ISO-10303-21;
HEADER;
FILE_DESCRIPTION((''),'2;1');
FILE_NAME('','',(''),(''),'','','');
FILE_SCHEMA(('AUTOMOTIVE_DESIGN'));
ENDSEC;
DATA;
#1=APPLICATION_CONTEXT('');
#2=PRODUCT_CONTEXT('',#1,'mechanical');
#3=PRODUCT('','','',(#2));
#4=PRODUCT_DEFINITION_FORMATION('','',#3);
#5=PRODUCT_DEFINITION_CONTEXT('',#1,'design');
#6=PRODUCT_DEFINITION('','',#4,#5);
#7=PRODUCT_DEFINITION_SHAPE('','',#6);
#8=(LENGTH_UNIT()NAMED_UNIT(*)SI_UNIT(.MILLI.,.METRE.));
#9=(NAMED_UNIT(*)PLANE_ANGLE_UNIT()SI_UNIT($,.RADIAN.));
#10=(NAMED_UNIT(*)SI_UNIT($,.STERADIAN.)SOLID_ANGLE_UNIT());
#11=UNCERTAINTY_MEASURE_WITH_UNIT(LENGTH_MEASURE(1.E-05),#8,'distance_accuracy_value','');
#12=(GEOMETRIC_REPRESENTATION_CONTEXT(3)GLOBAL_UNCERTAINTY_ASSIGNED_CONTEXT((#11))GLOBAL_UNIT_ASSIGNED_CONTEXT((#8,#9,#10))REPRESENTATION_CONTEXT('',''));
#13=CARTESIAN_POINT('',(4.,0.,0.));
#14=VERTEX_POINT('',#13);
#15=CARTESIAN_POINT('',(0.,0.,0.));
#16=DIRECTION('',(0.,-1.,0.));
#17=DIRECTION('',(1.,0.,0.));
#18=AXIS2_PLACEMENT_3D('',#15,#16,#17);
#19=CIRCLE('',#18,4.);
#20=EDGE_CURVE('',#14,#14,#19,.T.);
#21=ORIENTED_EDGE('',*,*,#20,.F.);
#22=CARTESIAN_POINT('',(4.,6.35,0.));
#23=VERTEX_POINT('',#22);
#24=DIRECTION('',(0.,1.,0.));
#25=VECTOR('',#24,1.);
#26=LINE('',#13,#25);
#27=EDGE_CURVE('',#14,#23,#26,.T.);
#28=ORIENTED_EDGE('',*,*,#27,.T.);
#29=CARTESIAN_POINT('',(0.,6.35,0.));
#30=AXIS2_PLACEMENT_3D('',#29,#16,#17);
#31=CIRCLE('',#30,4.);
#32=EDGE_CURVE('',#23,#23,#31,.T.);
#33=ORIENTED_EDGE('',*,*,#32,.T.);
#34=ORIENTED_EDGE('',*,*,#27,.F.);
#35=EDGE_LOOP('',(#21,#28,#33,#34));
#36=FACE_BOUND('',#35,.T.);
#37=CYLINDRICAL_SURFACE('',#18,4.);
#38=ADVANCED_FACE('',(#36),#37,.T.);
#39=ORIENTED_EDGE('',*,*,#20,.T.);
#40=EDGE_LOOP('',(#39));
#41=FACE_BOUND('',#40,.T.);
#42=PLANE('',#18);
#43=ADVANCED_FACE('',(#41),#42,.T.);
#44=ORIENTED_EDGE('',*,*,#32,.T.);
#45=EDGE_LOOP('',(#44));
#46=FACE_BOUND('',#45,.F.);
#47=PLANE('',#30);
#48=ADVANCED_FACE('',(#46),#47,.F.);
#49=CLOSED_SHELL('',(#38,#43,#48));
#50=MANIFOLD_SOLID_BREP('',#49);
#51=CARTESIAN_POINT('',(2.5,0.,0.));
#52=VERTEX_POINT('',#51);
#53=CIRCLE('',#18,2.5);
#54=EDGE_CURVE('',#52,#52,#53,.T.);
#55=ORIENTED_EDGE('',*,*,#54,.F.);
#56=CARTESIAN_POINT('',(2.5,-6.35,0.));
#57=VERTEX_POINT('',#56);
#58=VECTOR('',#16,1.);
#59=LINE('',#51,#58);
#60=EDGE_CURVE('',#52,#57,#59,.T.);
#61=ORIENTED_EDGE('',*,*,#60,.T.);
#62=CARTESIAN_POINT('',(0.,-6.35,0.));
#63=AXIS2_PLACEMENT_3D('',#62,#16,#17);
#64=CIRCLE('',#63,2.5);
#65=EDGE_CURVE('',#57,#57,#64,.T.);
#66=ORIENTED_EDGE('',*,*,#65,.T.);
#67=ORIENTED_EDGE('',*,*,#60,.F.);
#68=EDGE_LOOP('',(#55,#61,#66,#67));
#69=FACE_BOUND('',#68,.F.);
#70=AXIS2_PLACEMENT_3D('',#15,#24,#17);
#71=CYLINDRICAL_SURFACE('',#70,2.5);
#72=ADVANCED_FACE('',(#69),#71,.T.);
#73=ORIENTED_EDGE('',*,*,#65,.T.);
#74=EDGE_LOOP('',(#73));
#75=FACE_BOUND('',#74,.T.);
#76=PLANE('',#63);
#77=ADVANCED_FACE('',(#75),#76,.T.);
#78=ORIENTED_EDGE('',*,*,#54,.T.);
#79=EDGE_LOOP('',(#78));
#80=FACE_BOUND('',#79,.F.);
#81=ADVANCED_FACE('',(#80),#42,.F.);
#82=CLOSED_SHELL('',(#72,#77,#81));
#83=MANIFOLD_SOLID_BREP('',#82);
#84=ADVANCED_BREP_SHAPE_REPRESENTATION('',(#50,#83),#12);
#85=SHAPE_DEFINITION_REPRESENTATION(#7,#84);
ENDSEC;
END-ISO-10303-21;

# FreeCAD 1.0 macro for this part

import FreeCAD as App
import Part
import Sketcher

V = App.Vector
Q = App.Units.Quantity

doc = App.newDocument("Part")
body = doc.addObject("PartDesign::Body", "Body")

sketch1 = body.newObject("Sketcher::SketchObject", "Sketch")
sketch1.AttachmentSupport = (doc.getObject("XZ_Plane"), [""])
sketch1.MapMode = "FlatFace"
sketch1.addGeometry(Part.Circle(V(0, 0, 0), V(0, 0, 1), 2.5), False)
sketch1.addConstraint([
    Sketcher.Constraint("Coincident", 0, 3, -1, 1),
    Sketcher.Constraint("Diameter", 0, Q("5 mm")),
])
pad1 = body.newObject("PartDesign::Pad", "Pad")
pad1.Profile = sketch1
pad1.Length = 6.35
body2 = doc.addObject("PartDesign::Body", "Body001")

sketch2 = body2.newObject("Sketcher::SketchObject", "Sketch001")
sketch2.AttachmentSupport = (doc.getObject("XZ_Plane001"), [""])
sketch2.MapMode = "FlatFace"
sketch2.addGeometry(Part.Circle(V(0, 0, 0), V(0, 0, 1), 4), False)
sketch2.addConstraint([
    Sketcher.Constraint("Coincident", 0, 3, -1, 1),
    Sketcher.Constraint("Diameter", 0, Q("8 mm")),
])
pad2 = body2.newObject("PartDesign::Pad", "Pad001")
pad2.Profile = sketch2
pad2.Length = 6.35
pad2.Reversed = True

doc.recompute()
